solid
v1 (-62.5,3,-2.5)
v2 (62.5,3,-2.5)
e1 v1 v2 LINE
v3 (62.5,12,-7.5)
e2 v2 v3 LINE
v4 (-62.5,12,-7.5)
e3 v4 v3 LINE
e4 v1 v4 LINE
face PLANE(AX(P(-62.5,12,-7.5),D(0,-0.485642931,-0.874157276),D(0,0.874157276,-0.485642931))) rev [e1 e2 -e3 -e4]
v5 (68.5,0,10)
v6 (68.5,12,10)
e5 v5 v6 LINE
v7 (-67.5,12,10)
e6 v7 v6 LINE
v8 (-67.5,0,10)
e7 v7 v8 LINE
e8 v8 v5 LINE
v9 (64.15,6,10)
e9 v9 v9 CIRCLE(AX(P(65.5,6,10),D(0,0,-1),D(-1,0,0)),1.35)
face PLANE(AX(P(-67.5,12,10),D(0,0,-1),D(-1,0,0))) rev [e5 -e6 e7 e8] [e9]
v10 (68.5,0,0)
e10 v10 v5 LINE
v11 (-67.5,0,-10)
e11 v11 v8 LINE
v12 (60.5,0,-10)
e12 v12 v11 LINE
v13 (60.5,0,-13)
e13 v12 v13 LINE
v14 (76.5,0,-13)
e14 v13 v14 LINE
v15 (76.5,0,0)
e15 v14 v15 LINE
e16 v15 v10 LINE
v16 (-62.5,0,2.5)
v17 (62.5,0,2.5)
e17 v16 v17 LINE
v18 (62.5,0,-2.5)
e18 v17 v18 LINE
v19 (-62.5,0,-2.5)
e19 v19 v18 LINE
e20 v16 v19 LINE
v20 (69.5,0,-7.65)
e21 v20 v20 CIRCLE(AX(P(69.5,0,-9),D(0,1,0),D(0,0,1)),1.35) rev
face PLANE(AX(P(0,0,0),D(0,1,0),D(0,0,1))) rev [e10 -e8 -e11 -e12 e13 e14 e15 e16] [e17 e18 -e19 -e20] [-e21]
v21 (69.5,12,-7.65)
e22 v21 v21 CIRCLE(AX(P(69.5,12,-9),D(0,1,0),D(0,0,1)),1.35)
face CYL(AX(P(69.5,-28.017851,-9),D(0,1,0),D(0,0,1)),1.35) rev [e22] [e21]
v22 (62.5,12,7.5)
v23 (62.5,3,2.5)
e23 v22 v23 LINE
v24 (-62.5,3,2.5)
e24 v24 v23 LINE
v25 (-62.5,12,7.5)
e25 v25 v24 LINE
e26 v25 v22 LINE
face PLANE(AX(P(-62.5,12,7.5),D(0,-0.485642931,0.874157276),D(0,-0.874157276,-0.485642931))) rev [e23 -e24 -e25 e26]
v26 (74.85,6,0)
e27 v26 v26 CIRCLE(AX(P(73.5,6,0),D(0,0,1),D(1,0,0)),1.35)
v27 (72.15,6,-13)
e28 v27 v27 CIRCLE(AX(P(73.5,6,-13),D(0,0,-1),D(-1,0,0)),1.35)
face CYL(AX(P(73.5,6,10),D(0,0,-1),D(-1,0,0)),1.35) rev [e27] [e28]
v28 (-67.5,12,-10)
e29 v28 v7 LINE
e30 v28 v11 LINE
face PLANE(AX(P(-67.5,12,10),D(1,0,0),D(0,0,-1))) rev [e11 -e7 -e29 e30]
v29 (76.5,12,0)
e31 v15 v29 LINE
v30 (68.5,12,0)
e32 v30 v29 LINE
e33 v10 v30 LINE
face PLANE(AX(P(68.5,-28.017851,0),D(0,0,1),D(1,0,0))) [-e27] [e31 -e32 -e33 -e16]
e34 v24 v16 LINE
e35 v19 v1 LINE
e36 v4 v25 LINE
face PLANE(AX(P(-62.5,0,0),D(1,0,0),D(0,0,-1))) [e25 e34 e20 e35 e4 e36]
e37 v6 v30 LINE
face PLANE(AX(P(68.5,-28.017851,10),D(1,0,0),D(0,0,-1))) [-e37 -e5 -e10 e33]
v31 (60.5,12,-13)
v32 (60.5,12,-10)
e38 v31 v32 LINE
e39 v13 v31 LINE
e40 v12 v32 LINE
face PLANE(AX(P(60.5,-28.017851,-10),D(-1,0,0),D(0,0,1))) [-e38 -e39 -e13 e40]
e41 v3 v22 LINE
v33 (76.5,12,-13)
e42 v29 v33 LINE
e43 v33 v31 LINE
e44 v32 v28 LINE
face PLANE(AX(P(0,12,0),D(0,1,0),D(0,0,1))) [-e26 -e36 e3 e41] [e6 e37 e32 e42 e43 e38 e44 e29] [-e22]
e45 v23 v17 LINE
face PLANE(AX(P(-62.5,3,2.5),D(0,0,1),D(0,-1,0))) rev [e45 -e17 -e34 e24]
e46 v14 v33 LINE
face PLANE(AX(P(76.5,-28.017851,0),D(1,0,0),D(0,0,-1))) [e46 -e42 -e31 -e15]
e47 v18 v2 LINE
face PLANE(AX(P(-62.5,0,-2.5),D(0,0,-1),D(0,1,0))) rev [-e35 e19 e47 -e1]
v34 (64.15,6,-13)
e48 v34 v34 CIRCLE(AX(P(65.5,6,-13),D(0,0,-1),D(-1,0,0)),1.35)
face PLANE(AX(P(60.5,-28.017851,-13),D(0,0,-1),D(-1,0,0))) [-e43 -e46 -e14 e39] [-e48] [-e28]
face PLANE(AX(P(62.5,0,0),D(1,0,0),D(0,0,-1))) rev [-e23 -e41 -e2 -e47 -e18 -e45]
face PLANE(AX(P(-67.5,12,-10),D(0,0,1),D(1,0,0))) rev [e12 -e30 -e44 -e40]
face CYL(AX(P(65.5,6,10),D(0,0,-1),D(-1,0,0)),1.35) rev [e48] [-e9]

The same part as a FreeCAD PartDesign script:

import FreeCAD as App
import Part
import Sketcher
from FreeCAD import Vector
Q = App.Units.Quantity

doc = App.newDocument("Part")
params = doc.addObject("Spreadsheet::Sheet", "Params")
for row, (alias, value) in enumerate([
    ("sketch1_width", "135 mm"),
    ("sketch1_height", "20 mm"),
    ("pad1_length", "12 mm"),
    ("sketch2_width", "3 mm"),
    ("sketch2_height", "5 mm"),
    ("sketch2_height2", "15 mm"),
    ("pocket1_length", "125 mm"),
    ("sketch3_diameter", "2.7 mm"),
    ("sketch3_width", "7 mm"),
    ("sketch3_width2", "1 mm"),
    ("sketch3_width3", "8 mm"),
    ("sketch3_height", "20 mm"),
    ("pad2_length", "12 mm"),
    ("sketch4_diameter", "2.7 mm"),
], start=1):
    params.set(f"A{row}", alias)
    params.set(f"B{row}", "=" + value)
    params.setAlias(f"B{row}", alias)

body = doc.addObject("PartDesign::Body", "Body")

# Sketch on XZ plane
sketch1 = body.newObject("Sketcher::SketchObject", "Sketch")
sketch1.AttachmentSupport = (doc.getObject("XZ_Plane"), [""])
sketch1.MapMode = "FlatFace"
sketch1.addGeometry([
    Part.LineSegment(Vector(-68, -10, 0), Vector(-68, 10, 0)),
    Part.LineSegment(Vector(-68, 10, 0), Vector(68, 10, 0)),
    Part.LineSegment(Vector(68, 10, 0), Vector(68, -10, 0)),
    Part.LineSegment(Vector(68, -10, 0), Vector(-68, -10, 0)),
], False)
sketch1.addConstraint([
    Sketcher.Constraint("Coincident", 0, 2, 1, 1),
    Sketcher.Constraint("Coincident", 1, 2, 2, 1),
    Sketcher.Constraint("Coincident", 2, 2, 3, 1),
    Sketcher.Constraint("Coincident", 3, 2, 0, 1),
    Sketcher.Constraint("Vertical", 0),
    Sketcher.Constraint("Horizontal", 1),
    Sketcher.Constraint("Vertical", 2),
    Sketcher.Constraint("Horizontal", 3),
    Sketcher.Constraint("Symmetric", 0, 2, 2, 2, -1, 1),
    Sketcher.Constraint("DistanceX", 1, 1, 1, 2, Q("135 mm")),
    Sketcher.Constraint("DistanceY", 0, 1, 0, 2, Q("20 mm")),
])
sketch1.setExpression("Constraints[9]", "Params.sketch1_width")
sketch1.setExpression("Constraints[10]", "Params.sketch1_height")
pad1 = body.newObject("PartDesign::Pad", "Pad")
pad1.Profile = sketch1
pad1.setExpression("Length", "Params.pad1_length")
pad1.Reversed = True

# Sketch on YZ plane
sketch2 = body.newObject("Sketcher::SketchObject", "Sketch001")
sketch2.AttachmentSupport = (doc.getObject("YZ_Plane"), [""])
sketch2.MapMode = "FlatFace"
sketch2.addGeometry([
    Part.LineSegment(Vector(12, 7.5, 0), Vector(3, 2.5, 0)),  # 0
    Part.LineSegment(Vector(3, 2.5, 0), Vector(0, 2.5, 0)),  # 1
    Part.LineSegment(Vector(0, 2.5, 0), Vector(0, -2.5, 0)),  # 2
    Part.LineSegment(Vector(0, -2.5, 0), Vector(3, -2.5, 0)),  # 3
    Part.LineSegment(Vector(3, -2.5, 0), Vector(12, -7.5, 0)),  # 4
    Part.LineSegment(Vector(12, -7.5, 0), Vector(12, 7.5, 0)),  # 5
], False)
sketch2.addConstraint([
    Sketcher.Constraint("Coincident", 0, 2, 1, 1),
    Sketcher.Constraint("Coincident", 1, 2, 2, 1),
    Sketcher.Constraint("Coincident", 2, 2, 3, 1),
    Sketcher.Constraint("Coincident", 3, 2, 4, 1),
    Sketcher.Constraint("Coincident", 4, 2, 5, 1),
    Sketcher.Constraint("Coincident", 5, 2, 0, 1),
    Sketcher.Constraint("Horizontal", 1),
    Sketcher.Constraint("Vertical", 2),
    Sketcher.Constraint("Horizontal", 3),
    Sketcher.Constraint("Vertical", 5),
    Sketcher.Constraint("Symmetric", 1, 2, 2, 2, -1, 1),
    Sketcher.Constraint("Vertical", 0, 2, 3, 2),
    Sketcher.Constraint("Equal", 0, 4),
    Sketcher.Constraint("DistanceX", 1, 2, 1, 1, Q("3 mm")),
    Sketcher.Constraint("DistanceY", 2, 2, 2, 1, Q("5 mm")),
    Sketcher.Constraint("DistanceY", 5, 1, 5, 2, Q("15 mm")),
    Sketcher.Constraint("DistanceX", -1, 1, 4, 2, Q("12 mm")),
])
sketch2.setExpression("Constraints[13]", "Params.sketch2_width")
sketch2.setExpression("Constraints[14]", "Params.sketch2_height")
sketch2.setExpression("Constraints[15]", "Params.sketch2_height2")
pocket1 = body.newObject("PartDesign::Pocket", "Pocket")
pocket1.Profile = sketch2
pocket1.setExpression("Length", "Params.pocket1_length")
pocket1.Midplane = True

# Sketch on XZ plane
sketch3 = body.newObject("Sketcher::SketchObject", "Sketch002")
sketch3.AttachmentSupport = (doc.getObject("XZ_Plane"), [""])
sketch3.MapMode = "FlatFace"
sketch3.AttachmentOffset = App.Placement(Vector(0, 0, -12), App.Rotation())
sketch3.addGeometry([
    Part.LineSegment(Vector(60.5, -10, 0), Vector(67.5, -10, 0)),  # 0
    Part.LineSegment(Vector(67.5, -10, 0), Vector(67.5, 10, 0)),  # 1
    Part.LineSegment(Vector(67.5, 10, 0), Vector(68.5, 10, 0)),  # 2
    Part.LineSegment(Vector(68.5, 10, 0), Vector(68.5, 0, 0)),  # 3
    Part.LineSegment(Vector(68.5, 0, 0), Vector(76.5, 0, 0)),  # 4
    Part.LineSegment(Vector(76.5, 0, 0), Vector(76.5, -13, 0)),  # 5
    Part.LineSegment(Vector(76.5, -13, 0), Vector(60.5, -13, 0)),  # 6
    Part.LineSegment(Vector(60.5, -13, 0), Vector(60.5, -10, 0)),  # 7
    Part.Circle(Vector(69.5, -9, 0), Vector(0, 0, 1), 1.4),  # 8
], False)
sketch3.addConstraint([
    Sketcher.Constraint("Coincident", 0, 2, 1, 1),
    Sketcher.Constraint("Coincident", 1, 2, 2, 1),
    Sketcher.Constraint("Coincident", 2, 2, 3, 1),
    Sketcher.Constraint("Coincident", 3, 2, 4, 1),
    Sketcher.Constraint("Coincident", 4, 2, 5, 1),
    Sketcher.Constraint("Coincident", 5, 2, 6, 1),
    Sketcher.Constraint("Coincident", 6, 2, 7, 1),
    Sketcher.Constraint("Coincident", 7, 2, 0, 1),
    Sketcher.Constraint("Horizontal", 0),
    Sketcher.Constraint("Vertical", 1),
    Sketcher.Constraint("Horizontal", 2),
    Sketcher.Constraint("Vertical", 3),
    Sketcher.Constraint("Horizontal", 4),
    Sketcher.Constraint("Vertical", 5),
    Sketcher.Constraint("Horizontal", 6),
    Sketcher.Constraint("Vertical", 7),
    Sketcher.Constraint("PointOnObject", 3, 2, -1),
    Sketcher.Constraint("Diameter", 8, Q("2.7 mm")),
    Sketcher.Constraint("DistanceX", 0, 1, 0, 2, Q("7 mm")),
    Sketcher.Constraint("DistanceX", 2, 1, 2, 2, Q("1 mm")),
    Sketcher.Constraint("DistanceX", 4, 1, 4, 2, Q("8 mm")),
    Sketcher.Constraint("DistanceY", 1, 1, 1, 2, Q("20 mm")),
    Sketcher.Constraint("DistanceY", 3, 2, 3, 1, Q("10 mm")),
    Sketcher.Constraint("DistanceY", 5, 2, 5, 1, Q("13 mm")),
    Sketcher.Constraint("DistanceY", 8, 3, -1, 1, Q("9 mm")),
    Sketcher.Constraint("DistanceX", 0, 2, 8, 3, Q("2 mm")),
    Sketcher.Constraint("DistanceX", -1, 1, 8, 3, Q("69.5 mm")),
])
sketch3.setExpression("Constraints[17]", "Params.sketch3_diameter")
sketch3.setExpression("Constraints[18]", "Params.sketch3_width")
sketch3.setExpression("Constraints[19]", "Params.sketch3_width2")
sketch3.setExpression("Constraints[20]", "Params.sketch3_width3")
sketch3.setExpression("Constraints[21]", "Params.sketch3_height")
pad2 = body.newObject("PartDesign::Pad", "Pad001")
pad2.Profile = sketch3
pad2.setExpression("Length", "Params.pad2_length")

# Sketch on XY plane
sketch4 = body.newObject("Sketcher::SketchObject", "Sketch003")
sketch4.AttachmentSupport = (doc.getObject("XY_Plane"), [""])
sketch4.MapMode = "FlatFace"
sketch4.AttachmentOffset = App.Placement(Vector(0, 0, -13), App.Rotation())
sketch4.addGeometry([
    Part.Circle(Vector(65.5, 6, 0), Vector(0, 0, 1), 1.4),
    Part.Circle(Vector(73.5, 6, 0), Vector(0, 0, 1), 1.4),
], False)
sketch4.addConstraint([
    Sketcher.Constraint("Equal", 0, 1),
    Sketcher.Constraint("Horizontal", 0, 3, 1, 3),
    Sketcher.Constraint("Diameter", 0, Q("2.7 mm")),
    Sketcher.Constraint("DistanceY", -1, 1, 0, 3, Q("6 mm")),
    Sketcher.Constraint("DistanceX", 0, 3, 1, 3, Q("8 mm")),
    Sketcher.Constraint("DistanceX", -1, 1, 0, 3, Q("65.5 mm")),
])
sketch4.setExpression("Constraints[2]", "Params.sketch4_diameter")
pocket2 = body.newObject("PartDesign::Pocket", "Pocket001")
pocket2.Profile = sketch4
pocket2.Type = "ThroughAll"
pocket2.Reversed = True

doc.recompute()
